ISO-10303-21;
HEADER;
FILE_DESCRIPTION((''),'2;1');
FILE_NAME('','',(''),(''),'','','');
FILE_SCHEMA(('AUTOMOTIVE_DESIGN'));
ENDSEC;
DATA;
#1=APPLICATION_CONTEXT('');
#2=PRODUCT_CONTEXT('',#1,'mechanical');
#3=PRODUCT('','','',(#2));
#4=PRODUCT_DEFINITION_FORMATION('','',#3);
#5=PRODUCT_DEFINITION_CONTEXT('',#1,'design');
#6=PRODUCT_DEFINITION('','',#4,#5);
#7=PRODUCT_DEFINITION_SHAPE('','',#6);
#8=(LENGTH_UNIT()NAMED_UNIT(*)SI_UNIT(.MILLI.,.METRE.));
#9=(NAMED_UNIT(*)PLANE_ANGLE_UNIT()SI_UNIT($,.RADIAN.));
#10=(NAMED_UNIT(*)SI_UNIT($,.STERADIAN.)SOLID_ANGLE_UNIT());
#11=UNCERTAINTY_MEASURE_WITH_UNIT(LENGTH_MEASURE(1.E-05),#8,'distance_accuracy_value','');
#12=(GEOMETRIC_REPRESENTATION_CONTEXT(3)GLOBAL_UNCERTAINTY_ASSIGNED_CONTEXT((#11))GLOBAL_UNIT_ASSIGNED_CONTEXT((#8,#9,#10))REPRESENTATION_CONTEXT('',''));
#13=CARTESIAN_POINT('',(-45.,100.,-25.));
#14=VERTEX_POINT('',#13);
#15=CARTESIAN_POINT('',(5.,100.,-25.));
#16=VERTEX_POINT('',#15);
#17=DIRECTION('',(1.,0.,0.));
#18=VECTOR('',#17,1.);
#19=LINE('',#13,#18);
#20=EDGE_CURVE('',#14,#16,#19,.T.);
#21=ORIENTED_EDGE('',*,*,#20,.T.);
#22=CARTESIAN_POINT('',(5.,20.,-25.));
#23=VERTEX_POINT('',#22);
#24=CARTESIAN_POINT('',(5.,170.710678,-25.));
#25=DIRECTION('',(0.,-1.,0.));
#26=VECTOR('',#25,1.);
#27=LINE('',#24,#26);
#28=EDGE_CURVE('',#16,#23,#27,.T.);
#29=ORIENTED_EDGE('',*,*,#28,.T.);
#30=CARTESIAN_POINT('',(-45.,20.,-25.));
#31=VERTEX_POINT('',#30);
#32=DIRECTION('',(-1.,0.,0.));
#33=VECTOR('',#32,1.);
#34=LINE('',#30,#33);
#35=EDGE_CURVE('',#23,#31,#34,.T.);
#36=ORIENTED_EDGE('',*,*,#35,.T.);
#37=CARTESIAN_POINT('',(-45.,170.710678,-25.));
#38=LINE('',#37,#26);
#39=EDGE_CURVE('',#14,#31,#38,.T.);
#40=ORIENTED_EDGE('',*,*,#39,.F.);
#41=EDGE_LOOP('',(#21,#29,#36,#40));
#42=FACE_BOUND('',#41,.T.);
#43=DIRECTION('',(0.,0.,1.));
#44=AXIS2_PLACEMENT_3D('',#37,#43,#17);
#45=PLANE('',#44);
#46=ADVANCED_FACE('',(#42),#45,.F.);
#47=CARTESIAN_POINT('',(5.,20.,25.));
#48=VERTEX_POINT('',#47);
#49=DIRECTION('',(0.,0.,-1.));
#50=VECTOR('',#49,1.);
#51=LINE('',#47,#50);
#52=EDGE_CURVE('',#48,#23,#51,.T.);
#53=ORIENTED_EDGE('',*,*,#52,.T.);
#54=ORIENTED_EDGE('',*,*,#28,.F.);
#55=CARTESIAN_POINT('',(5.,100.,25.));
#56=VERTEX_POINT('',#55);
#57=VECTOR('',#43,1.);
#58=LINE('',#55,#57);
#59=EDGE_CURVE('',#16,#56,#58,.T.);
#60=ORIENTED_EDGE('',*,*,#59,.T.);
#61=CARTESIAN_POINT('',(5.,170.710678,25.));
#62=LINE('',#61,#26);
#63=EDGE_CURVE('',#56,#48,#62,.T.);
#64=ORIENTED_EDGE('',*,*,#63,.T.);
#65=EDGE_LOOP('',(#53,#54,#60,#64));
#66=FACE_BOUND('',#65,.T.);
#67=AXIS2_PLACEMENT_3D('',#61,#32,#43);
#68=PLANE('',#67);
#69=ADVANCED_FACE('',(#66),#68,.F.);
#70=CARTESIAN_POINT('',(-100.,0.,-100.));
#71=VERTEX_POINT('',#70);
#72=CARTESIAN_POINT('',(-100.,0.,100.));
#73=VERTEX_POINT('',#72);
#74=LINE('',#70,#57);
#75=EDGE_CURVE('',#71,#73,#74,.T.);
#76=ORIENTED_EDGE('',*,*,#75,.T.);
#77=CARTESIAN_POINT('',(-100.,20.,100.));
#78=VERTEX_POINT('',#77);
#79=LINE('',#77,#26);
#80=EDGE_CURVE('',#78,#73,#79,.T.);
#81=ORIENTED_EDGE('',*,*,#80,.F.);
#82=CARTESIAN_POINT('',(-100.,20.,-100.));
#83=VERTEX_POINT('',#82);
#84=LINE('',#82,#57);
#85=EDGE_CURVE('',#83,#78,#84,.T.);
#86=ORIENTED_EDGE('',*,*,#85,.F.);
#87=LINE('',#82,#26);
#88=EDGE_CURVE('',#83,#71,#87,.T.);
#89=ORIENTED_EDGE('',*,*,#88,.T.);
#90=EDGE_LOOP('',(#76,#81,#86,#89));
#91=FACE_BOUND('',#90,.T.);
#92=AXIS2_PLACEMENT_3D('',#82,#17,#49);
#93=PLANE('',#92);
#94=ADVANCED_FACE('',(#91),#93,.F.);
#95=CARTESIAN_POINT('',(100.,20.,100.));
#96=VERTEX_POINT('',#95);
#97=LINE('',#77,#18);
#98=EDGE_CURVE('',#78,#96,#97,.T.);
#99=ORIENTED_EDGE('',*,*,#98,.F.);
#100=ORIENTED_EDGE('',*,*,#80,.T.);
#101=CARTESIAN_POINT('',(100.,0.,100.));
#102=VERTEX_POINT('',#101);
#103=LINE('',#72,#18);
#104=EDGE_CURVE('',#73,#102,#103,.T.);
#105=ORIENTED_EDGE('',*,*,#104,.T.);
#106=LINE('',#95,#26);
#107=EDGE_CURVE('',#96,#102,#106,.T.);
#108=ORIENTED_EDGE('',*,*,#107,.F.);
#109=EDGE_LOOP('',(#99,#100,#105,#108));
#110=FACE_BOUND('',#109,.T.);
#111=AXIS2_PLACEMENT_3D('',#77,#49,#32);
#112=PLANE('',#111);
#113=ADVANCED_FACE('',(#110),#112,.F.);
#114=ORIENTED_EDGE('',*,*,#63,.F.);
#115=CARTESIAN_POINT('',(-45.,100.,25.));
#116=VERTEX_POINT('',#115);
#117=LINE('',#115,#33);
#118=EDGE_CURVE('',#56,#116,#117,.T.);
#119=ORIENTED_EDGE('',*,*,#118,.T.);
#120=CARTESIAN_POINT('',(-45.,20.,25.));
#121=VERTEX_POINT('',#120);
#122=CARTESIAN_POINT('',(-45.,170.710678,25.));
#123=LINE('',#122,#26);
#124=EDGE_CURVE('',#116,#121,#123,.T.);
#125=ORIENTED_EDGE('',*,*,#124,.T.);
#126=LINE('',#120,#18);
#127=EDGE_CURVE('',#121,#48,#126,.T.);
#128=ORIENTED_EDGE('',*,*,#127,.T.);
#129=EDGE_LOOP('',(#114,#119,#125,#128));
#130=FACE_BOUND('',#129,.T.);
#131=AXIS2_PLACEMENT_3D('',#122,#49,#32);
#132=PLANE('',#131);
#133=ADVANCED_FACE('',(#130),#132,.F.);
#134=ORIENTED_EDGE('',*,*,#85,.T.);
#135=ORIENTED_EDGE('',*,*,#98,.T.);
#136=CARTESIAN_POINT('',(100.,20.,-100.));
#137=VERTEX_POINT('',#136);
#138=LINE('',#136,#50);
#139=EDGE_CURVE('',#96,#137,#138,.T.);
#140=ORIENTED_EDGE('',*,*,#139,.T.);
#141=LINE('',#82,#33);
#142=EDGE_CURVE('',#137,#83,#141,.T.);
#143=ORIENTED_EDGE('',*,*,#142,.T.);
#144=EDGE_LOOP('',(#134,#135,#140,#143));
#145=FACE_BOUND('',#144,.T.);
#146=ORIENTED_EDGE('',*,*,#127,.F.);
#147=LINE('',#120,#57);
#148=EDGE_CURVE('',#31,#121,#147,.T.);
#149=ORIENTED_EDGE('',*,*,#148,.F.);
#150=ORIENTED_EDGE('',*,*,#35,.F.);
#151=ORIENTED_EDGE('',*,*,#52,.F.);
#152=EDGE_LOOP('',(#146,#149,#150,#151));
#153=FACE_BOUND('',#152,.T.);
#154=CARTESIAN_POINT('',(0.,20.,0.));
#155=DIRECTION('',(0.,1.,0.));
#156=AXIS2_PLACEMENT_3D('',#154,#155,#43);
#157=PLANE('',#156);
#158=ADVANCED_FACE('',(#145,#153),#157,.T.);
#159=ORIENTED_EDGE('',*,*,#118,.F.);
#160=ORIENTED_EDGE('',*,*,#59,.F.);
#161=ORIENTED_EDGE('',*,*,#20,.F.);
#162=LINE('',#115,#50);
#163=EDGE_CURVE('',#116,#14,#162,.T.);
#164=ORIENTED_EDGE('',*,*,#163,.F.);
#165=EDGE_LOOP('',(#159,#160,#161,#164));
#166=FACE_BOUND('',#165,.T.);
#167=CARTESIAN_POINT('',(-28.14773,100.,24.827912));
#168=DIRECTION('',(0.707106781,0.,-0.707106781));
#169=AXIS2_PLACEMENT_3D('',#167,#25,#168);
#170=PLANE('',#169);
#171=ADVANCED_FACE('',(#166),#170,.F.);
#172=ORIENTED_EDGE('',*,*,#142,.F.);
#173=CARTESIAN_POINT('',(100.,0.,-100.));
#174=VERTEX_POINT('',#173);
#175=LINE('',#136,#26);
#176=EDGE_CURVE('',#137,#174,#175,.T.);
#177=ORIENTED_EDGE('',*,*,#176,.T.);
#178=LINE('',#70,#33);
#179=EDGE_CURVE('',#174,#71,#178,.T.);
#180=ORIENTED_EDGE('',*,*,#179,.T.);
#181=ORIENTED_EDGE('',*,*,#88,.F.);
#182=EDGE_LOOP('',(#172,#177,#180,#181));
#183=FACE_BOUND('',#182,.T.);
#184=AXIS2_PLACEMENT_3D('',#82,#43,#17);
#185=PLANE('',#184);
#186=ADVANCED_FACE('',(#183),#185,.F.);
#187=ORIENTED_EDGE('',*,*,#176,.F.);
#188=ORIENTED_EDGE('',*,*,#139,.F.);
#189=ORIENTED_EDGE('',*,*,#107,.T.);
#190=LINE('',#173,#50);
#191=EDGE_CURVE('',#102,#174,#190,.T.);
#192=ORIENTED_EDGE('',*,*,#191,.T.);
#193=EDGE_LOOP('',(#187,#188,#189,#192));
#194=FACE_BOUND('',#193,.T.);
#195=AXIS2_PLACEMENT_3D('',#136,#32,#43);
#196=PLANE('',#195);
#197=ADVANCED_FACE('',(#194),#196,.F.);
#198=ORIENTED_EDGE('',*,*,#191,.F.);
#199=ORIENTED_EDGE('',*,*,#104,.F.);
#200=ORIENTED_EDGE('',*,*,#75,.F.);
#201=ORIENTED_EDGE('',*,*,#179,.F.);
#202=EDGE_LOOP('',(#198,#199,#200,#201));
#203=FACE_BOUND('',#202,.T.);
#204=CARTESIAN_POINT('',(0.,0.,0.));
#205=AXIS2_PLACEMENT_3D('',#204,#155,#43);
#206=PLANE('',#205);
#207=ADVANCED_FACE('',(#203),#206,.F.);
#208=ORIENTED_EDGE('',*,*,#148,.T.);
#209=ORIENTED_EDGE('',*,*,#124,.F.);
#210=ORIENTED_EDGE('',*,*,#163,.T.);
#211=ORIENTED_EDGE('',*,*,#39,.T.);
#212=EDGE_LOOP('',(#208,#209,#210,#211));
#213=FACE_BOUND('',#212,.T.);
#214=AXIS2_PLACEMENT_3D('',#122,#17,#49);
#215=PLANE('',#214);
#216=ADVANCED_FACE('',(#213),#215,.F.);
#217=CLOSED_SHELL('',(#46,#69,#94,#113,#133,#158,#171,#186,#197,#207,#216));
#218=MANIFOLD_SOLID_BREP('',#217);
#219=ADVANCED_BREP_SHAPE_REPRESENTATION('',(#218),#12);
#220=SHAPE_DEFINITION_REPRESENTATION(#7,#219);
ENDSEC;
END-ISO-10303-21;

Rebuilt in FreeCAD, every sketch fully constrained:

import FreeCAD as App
import Part
import Sketcher


def add_polygon(sketch, points):
    """Adds a closed chain of lines whose ends are joined by coincident constraints."""
    first, n = sketch.GeometryCount, len(points)
    for a, b in zip(points, points[1:] + points[:1]):
        sketch.addGeometry(Part.LineSegment(App.Vector(*a, 0), App.Vector(*b, 0)), False)
    for i in range(n):
        sketch.addConstraint(Sketcher.Constraint("Coincident", first + i, 2, first + (i + 1) % n, 1))

doc = App.newDocument("Part")
params = doc.addObject("Spreadsheet::Sheet", "Params")
for row, (alias, value) in enumerate([
    ("sketch1_width", "200 mm"),
    ("pad1_length", "20 mm"),
    ("sketch2_width", "50 mm"),
    ("pad2_length", "80 mm"),
], start=1):
    params.set(f"A{row}", alias)
    params.set(f"B{row}", "=" + value)
    params.setAlias(f"B{row}", alias)

body = doc.addObject("PartDesign::Body", "Body")

# Sketch on XZ plane
sketch1 = doc.addObject("Sketcher::SketchObject", "Sketch")
body.addObject(sketch1)
sketch1.AttachmentSupport = (doc.XZ_Plane, [""])
sketch1.MapMode = "FlatFace"
add_polygon(sketch1, [(-100, -100), (-100, 100), (100, 100), (100, -100)])  # lines 0-3
sketch1.addConstraint([
    Sketcher.Constraint("Vertical", 0),
    Sketcher.Constraint("Horizontal", 1),
    Sketcher.Constraint("Vertical", 2),
    Sketcher.Constraint("Horizontal", 3),
    Sketcher.Constraint("Symmetric", 0, 2, 2, 2, -1, 1),
    Sketcher.Constraint("Equal", 3, 0),
    Sketcher.Constraint("DistanceX", 1, 1, 1, 2, 200.0),
])
sketch1.setExpression("Constraints[10]", "Params.sketch1_width")
pad1 = doc.addObject("PartDesign::Pad", "Pad")
body.addObject(pad1)
pad1.Profile = sketch1
pad1.setExpression("Length", "Params.pad1_length")
pad1.Reversed = True

# Sketch on XZ plane
sketch2 = doc.addObject("Sketcher::SketchObject", "Sketch001")
body.addObject(sketch2)
sketch2.AttachmentSupport = (doc.XZ_Plane, [""])
sketch2.MapMode = "FlatFace"
sketch2.AttachmentOffset = App.Placement(App.Vector(0, 0, -20), App.Rotation())
add_polygon(sketch2, [(-45, -25), (-45, 25), (5, 25), (5, -25)])  # lines 0-3
sketch2.addConstraint([
    Sketcher.Constraint("Vertical", 0),
    Sketcher.Constraint("Horizontal", 1),
    Sketcher.Constraint("Vertical", 2),
    Sketcher.Constraint("Horizontal", 3),
    Sketcher.Constraint("Equal", 3, 0),
    Sketcher.Constraint("DistanceX", 1, 1, 1, 2, 50.0),
    Sketcher.Constraint("DistanceX", 0, 2, -1, 1, 45.0),
    Sketcher.Constraint("DistanceY", -1, 1, 0, 2, 25.0),
])
sketch2.setExpression("Constraints[9]", "Params.sketch2_width")
pad2 = doc.addObject("PartDesign::Pad", "Pad001")
body.addObject(pad2)
pad2.Profile = sketch2
pad2.setExpression("Length", "Params.pad2_length")
pad2.Reversed = True

doc.recompute()
